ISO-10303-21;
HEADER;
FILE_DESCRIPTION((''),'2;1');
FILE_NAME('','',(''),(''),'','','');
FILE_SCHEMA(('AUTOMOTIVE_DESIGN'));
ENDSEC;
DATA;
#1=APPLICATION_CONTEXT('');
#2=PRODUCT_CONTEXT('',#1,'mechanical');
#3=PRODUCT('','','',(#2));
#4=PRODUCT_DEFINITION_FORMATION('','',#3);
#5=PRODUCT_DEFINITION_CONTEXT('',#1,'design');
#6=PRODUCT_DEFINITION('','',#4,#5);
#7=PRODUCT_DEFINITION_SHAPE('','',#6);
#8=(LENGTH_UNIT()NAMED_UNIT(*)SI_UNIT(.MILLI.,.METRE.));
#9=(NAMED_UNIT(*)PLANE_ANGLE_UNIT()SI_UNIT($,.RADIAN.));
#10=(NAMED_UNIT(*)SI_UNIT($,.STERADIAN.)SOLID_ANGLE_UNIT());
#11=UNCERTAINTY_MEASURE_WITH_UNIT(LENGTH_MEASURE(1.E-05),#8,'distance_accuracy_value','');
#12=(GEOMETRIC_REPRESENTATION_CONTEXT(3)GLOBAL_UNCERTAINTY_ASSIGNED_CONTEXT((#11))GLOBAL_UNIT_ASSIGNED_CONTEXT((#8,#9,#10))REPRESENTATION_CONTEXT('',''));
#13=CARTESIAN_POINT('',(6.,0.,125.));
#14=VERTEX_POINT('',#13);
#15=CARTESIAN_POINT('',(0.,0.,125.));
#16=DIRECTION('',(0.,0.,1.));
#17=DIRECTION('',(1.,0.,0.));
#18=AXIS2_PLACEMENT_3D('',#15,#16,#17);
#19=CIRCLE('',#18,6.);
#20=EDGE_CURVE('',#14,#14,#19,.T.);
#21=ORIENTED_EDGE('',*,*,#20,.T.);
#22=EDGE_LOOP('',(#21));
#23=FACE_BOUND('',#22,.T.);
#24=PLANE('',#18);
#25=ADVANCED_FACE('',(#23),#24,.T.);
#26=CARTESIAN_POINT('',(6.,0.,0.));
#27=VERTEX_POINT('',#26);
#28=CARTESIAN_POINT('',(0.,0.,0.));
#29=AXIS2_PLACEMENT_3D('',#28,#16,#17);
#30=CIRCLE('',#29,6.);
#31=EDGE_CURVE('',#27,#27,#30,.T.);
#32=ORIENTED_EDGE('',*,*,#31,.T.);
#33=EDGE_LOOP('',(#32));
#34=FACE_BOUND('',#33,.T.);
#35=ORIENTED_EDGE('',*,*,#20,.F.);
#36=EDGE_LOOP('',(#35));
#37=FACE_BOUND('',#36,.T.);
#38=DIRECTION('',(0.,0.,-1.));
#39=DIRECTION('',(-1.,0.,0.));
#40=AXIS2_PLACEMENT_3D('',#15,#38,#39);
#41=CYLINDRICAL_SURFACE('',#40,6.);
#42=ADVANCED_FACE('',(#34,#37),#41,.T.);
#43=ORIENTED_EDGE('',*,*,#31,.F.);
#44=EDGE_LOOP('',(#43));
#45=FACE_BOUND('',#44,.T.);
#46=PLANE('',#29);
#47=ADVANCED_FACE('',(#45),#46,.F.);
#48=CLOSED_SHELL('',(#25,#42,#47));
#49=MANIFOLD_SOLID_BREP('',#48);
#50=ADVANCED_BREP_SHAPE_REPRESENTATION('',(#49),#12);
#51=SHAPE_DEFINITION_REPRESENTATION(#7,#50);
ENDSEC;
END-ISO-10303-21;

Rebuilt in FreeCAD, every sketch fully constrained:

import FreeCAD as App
import Part
import Sketcher

V = App.Vector

doc = App.newDocument("Part")
body = doc.addObject("PartDesign::Body", "Body")

sketch1 = body.newObject("Sketcher::SketchObject", "Sketch")
sketch1.AttachmentSupport = (doc.getObject("XY_Plane"), [""])
sketch1.MapMode = "FlatFace"
sketch1.addGeometry(Part.Circle(V(0, 0, 0), V(0, 0, 1), 6), False)
sketch1.addConstraint(Sketcher.Constraint("Coincident", 0, 3, -1, 1))
sketch1.addConstraint(Sketcher.Constraint("Diameter", 0, 12.0))
pad1 = body.newObject("PartDesign::Pad", "Pad")
pad1.Profile = sketch1
pad1.Length = 125

doc.recompute()
